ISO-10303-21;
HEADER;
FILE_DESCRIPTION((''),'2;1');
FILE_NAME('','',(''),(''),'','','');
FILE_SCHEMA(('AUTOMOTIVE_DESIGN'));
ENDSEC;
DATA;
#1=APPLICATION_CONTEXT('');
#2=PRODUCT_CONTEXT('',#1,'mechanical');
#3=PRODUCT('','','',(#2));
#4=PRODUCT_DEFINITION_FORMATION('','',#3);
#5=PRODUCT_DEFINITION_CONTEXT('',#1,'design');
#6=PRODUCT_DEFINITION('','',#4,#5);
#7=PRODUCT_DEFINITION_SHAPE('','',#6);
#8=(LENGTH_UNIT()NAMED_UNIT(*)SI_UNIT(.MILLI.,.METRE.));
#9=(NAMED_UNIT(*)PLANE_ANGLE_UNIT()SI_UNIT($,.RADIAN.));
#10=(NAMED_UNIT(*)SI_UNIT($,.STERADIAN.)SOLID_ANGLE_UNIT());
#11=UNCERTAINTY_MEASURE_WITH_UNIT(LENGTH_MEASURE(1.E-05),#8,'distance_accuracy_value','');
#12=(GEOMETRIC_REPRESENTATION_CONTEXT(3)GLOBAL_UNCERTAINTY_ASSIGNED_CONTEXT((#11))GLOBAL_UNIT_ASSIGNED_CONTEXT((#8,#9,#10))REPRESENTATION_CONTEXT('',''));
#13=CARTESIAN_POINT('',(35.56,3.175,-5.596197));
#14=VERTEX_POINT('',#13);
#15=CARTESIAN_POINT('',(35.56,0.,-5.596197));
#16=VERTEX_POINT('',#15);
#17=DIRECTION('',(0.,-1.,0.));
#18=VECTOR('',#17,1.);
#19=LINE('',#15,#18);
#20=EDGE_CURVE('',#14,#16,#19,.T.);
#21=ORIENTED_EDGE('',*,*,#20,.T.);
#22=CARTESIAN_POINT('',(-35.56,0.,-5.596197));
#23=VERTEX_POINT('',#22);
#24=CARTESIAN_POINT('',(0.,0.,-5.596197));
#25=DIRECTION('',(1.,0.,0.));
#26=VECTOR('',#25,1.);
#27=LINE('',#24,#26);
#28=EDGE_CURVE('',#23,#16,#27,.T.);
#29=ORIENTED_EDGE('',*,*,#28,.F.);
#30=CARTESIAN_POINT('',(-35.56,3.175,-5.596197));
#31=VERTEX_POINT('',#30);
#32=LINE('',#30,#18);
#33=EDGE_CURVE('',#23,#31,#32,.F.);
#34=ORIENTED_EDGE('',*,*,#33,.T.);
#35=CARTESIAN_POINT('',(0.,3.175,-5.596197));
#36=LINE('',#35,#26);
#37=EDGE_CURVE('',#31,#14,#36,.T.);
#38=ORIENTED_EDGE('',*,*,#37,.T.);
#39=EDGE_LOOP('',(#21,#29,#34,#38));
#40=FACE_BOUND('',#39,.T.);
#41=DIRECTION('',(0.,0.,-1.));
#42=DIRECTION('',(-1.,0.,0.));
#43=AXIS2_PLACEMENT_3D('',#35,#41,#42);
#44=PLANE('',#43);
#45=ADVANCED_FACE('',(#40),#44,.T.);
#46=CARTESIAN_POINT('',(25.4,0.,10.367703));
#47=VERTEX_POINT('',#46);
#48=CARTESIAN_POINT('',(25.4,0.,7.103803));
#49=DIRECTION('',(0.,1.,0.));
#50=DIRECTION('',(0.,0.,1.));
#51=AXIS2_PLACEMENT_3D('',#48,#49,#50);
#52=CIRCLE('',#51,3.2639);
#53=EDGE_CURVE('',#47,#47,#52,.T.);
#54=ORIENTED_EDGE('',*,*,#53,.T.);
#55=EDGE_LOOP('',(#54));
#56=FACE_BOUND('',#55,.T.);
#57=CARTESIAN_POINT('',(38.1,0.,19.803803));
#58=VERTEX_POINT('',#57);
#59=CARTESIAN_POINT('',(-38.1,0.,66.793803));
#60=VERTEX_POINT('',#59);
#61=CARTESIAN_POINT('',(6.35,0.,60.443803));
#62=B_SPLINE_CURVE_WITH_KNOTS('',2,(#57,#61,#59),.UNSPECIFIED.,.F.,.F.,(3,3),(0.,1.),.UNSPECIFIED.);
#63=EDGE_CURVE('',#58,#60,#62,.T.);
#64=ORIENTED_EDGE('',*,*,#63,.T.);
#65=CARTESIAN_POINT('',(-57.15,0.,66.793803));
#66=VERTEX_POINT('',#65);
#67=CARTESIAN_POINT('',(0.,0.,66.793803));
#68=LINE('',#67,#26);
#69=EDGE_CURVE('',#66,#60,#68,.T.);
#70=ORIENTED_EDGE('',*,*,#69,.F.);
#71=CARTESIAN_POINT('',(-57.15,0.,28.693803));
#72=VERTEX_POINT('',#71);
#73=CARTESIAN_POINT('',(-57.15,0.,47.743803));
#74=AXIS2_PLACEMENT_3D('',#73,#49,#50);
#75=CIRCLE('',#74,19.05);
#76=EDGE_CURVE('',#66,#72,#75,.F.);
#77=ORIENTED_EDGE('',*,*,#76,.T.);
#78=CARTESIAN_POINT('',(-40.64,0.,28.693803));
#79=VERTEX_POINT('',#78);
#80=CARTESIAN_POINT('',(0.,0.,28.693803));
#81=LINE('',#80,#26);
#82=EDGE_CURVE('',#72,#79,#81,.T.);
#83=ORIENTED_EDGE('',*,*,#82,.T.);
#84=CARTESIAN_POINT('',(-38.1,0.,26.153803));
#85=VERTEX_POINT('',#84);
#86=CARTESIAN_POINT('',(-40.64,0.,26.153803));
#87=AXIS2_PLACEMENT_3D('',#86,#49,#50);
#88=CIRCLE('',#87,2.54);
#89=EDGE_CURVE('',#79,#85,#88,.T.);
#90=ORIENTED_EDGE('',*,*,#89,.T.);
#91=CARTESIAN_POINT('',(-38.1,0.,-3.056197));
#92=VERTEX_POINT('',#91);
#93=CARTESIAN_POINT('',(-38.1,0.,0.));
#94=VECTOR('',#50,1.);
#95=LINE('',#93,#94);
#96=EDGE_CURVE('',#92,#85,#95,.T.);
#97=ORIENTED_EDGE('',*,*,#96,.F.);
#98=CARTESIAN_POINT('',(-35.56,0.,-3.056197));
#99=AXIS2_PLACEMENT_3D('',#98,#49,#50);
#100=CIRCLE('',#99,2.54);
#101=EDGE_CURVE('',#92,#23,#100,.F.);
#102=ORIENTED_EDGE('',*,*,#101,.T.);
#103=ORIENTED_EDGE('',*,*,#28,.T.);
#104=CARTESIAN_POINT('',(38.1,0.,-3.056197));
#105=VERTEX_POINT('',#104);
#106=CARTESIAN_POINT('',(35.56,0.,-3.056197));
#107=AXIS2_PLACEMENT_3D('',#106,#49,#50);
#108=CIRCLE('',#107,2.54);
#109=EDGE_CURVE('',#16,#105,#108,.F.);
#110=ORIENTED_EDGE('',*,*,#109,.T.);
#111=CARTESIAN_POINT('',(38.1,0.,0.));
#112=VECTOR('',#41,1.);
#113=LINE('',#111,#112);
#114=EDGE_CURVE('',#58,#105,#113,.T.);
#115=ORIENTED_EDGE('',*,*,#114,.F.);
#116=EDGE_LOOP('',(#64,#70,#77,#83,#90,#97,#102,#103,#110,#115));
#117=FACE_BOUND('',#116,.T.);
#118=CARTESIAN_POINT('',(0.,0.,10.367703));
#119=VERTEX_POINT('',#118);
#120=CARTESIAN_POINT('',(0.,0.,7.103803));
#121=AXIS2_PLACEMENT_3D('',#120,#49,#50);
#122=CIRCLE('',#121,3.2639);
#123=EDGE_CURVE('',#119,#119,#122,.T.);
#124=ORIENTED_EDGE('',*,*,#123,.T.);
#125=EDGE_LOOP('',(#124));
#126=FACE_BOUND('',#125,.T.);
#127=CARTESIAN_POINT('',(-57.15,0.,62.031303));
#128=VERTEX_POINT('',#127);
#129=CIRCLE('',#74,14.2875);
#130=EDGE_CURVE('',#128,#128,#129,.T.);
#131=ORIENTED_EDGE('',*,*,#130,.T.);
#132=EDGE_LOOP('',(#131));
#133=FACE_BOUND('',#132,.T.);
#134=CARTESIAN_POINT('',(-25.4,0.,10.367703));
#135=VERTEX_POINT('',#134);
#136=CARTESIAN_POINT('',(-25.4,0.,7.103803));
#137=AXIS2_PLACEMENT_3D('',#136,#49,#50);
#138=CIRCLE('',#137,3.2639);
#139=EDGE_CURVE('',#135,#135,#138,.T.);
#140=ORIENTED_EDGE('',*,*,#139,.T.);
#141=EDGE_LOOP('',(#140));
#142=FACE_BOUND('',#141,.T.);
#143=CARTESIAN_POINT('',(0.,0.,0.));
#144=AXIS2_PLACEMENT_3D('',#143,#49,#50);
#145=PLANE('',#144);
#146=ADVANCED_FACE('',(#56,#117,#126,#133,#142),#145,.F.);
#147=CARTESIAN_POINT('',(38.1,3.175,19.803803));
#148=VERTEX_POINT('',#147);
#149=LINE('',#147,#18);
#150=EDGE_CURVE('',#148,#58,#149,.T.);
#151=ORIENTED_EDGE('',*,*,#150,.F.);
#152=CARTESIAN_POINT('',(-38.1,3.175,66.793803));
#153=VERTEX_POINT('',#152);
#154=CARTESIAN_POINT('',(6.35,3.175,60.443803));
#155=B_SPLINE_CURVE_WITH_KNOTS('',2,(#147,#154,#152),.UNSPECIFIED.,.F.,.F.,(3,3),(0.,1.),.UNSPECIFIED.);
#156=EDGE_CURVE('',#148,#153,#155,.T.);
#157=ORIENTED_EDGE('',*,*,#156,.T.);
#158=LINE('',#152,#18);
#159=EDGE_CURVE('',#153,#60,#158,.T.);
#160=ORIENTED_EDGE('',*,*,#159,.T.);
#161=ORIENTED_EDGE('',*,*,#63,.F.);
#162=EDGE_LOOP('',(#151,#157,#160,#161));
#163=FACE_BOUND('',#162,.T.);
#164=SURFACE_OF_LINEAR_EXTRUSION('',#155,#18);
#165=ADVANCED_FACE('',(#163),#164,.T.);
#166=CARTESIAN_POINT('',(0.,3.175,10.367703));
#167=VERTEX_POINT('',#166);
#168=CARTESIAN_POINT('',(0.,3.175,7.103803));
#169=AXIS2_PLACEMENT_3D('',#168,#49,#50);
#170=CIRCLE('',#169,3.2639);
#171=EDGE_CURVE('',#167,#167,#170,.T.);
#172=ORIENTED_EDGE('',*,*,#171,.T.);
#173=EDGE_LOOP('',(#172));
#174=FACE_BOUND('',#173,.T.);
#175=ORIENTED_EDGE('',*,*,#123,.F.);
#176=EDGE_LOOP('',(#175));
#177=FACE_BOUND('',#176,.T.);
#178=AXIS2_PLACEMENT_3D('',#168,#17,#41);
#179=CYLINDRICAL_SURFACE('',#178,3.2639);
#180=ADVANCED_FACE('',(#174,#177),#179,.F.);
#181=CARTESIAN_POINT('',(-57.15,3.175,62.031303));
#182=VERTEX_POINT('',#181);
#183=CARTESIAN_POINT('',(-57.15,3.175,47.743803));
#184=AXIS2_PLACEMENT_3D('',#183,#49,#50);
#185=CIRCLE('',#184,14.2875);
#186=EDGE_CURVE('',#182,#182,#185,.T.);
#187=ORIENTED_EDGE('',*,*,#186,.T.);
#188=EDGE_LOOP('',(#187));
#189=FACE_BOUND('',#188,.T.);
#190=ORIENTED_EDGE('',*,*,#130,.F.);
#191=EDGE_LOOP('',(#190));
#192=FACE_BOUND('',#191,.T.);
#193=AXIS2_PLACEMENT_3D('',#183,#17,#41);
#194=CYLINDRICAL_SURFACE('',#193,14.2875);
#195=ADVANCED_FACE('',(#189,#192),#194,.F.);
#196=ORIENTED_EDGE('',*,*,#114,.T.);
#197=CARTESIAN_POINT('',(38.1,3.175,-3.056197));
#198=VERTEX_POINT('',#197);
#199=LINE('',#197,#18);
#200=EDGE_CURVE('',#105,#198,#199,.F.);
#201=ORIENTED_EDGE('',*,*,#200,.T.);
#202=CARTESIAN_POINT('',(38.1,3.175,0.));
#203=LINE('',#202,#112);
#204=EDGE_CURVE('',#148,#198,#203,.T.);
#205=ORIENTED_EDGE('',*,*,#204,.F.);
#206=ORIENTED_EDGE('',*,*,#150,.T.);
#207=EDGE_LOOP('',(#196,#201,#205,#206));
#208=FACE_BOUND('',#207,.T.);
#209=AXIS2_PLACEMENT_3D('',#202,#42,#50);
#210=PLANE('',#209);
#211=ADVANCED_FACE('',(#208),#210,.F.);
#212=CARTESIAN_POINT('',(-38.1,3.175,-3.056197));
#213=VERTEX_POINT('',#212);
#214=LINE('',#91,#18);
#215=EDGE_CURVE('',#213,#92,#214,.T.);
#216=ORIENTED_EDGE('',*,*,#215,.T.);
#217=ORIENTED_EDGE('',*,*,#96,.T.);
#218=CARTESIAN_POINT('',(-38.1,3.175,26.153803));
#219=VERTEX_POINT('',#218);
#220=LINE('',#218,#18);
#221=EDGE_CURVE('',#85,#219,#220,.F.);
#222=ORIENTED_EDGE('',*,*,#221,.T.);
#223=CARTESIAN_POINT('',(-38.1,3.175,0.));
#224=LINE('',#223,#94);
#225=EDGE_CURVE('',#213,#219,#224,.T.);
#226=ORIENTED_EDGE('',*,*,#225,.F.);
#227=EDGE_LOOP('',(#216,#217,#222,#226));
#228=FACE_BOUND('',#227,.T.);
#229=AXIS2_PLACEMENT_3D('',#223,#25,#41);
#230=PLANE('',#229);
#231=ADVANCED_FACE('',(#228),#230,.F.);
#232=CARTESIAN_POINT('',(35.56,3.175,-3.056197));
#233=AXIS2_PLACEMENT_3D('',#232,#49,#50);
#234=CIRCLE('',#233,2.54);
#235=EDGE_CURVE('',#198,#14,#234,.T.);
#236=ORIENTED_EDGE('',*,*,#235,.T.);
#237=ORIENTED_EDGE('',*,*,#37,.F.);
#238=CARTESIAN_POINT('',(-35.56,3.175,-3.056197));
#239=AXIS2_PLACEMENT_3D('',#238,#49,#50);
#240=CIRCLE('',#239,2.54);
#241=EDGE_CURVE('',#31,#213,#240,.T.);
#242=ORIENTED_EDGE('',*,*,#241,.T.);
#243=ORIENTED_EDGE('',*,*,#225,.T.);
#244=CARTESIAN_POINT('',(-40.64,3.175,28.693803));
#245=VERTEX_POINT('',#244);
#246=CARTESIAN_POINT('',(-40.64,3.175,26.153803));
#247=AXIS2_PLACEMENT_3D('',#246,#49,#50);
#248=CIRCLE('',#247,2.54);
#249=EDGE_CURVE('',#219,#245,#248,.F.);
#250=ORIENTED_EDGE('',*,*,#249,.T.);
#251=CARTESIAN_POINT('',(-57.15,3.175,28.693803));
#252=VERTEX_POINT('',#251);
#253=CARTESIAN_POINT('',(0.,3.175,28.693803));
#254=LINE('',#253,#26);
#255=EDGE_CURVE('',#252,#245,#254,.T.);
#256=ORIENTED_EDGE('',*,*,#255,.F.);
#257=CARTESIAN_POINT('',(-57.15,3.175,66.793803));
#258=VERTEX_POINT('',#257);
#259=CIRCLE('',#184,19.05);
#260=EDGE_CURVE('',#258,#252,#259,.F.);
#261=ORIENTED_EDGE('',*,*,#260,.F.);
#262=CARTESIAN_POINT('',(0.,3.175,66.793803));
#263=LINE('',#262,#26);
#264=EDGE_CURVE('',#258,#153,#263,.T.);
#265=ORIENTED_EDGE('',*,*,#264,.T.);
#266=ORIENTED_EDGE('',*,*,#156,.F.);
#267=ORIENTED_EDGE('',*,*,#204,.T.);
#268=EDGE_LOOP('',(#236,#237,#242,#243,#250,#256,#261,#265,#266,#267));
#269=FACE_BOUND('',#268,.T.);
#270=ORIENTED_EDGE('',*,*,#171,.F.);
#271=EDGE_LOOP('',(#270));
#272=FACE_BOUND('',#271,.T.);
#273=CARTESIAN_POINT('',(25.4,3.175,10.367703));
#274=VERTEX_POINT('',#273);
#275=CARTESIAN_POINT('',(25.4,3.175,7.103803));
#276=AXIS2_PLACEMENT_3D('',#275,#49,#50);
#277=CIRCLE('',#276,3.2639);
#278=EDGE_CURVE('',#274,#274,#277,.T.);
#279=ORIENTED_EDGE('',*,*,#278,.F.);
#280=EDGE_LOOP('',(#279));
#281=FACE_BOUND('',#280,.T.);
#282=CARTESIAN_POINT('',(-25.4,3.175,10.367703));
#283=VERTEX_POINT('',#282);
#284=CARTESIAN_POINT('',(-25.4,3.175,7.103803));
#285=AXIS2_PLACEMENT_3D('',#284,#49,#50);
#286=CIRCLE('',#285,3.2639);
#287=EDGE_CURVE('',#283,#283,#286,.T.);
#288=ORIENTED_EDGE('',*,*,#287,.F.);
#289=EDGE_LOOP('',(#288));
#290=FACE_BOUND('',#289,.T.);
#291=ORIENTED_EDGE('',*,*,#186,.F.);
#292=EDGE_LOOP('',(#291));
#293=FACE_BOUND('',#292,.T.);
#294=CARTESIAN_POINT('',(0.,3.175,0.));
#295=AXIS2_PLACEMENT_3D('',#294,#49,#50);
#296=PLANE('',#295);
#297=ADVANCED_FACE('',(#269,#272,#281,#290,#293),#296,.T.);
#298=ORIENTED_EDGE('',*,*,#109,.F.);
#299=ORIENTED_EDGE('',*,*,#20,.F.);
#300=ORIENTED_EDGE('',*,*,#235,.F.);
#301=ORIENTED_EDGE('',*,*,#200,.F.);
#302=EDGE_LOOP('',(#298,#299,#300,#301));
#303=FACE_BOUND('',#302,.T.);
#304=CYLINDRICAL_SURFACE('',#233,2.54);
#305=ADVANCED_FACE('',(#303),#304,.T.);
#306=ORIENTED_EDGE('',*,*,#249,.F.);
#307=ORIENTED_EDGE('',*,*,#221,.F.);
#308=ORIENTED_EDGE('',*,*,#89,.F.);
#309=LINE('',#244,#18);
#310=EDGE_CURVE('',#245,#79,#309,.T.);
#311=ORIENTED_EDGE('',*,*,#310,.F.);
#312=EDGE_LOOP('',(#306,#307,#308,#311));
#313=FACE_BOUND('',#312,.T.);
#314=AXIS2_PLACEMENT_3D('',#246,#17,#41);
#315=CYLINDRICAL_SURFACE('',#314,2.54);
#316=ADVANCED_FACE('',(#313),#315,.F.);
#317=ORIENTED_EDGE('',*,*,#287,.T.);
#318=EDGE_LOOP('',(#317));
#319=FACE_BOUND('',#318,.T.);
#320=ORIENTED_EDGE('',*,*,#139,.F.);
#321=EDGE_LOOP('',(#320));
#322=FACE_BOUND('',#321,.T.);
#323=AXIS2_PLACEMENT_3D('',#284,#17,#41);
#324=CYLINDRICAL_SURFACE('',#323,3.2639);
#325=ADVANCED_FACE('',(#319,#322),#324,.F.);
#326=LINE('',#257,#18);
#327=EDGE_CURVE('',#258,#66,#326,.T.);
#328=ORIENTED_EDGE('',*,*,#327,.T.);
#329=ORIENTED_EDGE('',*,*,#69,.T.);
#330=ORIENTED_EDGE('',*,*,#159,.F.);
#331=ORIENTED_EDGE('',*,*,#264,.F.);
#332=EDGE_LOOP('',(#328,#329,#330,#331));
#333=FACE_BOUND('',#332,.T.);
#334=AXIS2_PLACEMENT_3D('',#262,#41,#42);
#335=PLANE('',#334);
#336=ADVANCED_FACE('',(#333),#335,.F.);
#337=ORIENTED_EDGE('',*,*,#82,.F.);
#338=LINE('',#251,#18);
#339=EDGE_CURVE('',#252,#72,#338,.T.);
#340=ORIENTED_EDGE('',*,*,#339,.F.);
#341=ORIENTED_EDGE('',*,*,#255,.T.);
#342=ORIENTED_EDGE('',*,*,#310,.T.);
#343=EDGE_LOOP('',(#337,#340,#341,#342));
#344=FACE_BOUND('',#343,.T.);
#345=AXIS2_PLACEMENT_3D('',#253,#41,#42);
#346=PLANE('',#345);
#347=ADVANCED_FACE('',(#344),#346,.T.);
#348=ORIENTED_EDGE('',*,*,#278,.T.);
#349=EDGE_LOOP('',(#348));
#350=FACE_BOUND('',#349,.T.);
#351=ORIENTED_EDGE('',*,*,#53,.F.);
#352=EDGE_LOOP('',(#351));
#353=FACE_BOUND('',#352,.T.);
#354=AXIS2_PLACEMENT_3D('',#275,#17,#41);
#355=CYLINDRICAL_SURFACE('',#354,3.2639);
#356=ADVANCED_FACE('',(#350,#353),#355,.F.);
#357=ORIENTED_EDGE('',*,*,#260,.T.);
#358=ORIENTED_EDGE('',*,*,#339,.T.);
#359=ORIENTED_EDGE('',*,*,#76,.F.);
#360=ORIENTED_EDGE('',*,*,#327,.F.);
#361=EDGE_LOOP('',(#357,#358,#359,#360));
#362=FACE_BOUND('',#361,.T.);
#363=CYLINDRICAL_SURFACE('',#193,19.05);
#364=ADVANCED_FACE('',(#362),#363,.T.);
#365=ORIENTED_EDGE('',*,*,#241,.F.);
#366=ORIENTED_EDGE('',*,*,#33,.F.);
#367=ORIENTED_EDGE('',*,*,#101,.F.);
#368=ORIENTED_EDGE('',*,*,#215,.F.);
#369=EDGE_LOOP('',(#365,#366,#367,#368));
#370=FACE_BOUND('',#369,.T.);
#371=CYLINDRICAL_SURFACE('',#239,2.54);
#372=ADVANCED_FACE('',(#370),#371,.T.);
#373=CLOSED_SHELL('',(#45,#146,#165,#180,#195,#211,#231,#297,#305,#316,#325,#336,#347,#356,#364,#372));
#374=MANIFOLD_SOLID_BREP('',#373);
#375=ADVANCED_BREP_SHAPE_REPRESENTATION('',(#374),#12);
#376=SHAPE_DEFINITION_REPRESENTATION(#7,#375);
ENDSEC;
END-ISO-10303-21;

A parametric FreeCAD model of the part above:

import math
import FreeCAD as App
import Part
import Sketcher

V = App.Vector
Q = App.Units.Quantity


def edges_at(feature, points):
    """Names of the edges that pass closest to the given points."""
    edges = feature.Shape.Edges
    near = lambda p: min(range(len(edges)), key=lambda i: edges[i].distToShape(Part.Vertex(*p))[0])
    return sorted({f"Edge{near(p) + 1}" for p in points})

doc = App.newDocument("Part")
body = doc.addObject("PartDesign::Body", "Body")

# Sketch on XZ plane
sketch1 = body.newObject("Sketcher::SketchObject", "Sketch")
sketch1.AttachmentSupport = (doc.getObject("XZ_Plane"), [""])
sketch1.MapMode = "FlatFace"
sketch1.addGeometry(Part.LineSegment(V(-38.1, 28.693803, 0), V(-57.15, 28.693803, 0)), False)
sketch1.addGeometry(Part.ArcOfCircle(Part.Circle(V(-57.15, 47.743803, 0), V(0, 0, 1), 19.05), math.radians(90), math.radians(270)), False)
sketch1.addGeometry(Part.LineSegment(V(-57.15, 66.793803, 0), V(-38.1, 66.793803, 0)), False)
sketch1.addGeometry(Part.BSplineCurve([V(38.1, 19.803803, 0), V(6.35, 60.443803, 0), V(-38.1, 66.793803, 0)], [3, 3], [0, 1], False, 2, [1, 1, 1], False), False)
sketch1.addGeometry(Part.LineSegment(V(38.1, 19.803803, 0), V(38.1, -5.596197, 0)), False)
sketch1.addGeometry(Part.LineSegment(V(38.1, -5.596197, 0), V(-38.1, -5.596197, 0)), False)
sketch1.addGeometry(Part.LineSegment(V(-38.1, -5.596197, 0), V(-38.1, 28.693803, 0)), False)
sketch1.addGeometry(Part.Circle(V(-57.15, 47.743803, 0), V(0, 0, 1), 14.2875), False)
sketch1.addGeometry(Part.Circle(V(-25.4, 7.103803, 0), V(0, 0, 1), 3.2639), False)
sketch1.addGeometry(Part.Circle(V(0, 7.103803, 0), V(0, 0, 1), 3.2639), False)
sketch1.addGeometry(Part.Circle(V(25.4, 7.103803, 0), V(0, 0, 1), 3.2639), False)
sketch1.addConstraint(Sketcher.Constraint("Block", 3))
sketch1.addConstraint(Sketcher.Constraint("Tangent", 0, 2, 1, 2))
sketch1.addConstraint(Sketcher.Constraint("Tangent", 1, 1, 2, 1))
sketch1.addConstraint(Sketcher.Constraint("Coincident", 2, 2, 3, 2))
sketch1.addConstraint(Sketcher.Constraint("Coincident", 3, 1, 4, 1))
sketch1.addConstraint(Sketcher.Constraint("Coincident", 4, 2, 5, 1))
sketch1.addConstraint(Sketcher.Constraint("Coincident", 5, 2, 6, 1))
sketch1.addConstraint(Sketcher.Constraint("Coincident", 6, 2, 0, 1))
sketch1.addConstraint(Sketcher.Constraint("Horizontal", 0))
sketch1.addConstraint(Sketcher.Constraint("Horizontal", 2))
sketch1.addConstraint(Sketcher.Constraint("Vertical", 4))
sketch1.addConstraint(Sketcher.Constraint("Horizontal", 5))
sketch1.addConstraint(Sketcher.Constraint("Vertical", 6))
sketch1.addConstraint(Sketcher.Constraint("Coincident", 7, 3, 1, 3))
sketch1.addConstraint(Sketcher.Constraint("Equal", 8, 9))
sketch1.addConstraint(Sketcher.Constraint("Equal", 9, 10))
sketch1.addConstraint(Sketcher.Constraint("Symmetric", 8, 3, 10, 3, -2))
sketch1.addConstraint(Sketcher.Constraint("PointOnObject", 9, 3, -2))
sketch1.addConstraint(Sketcher.Constraint("Horizontal", 8, 3, 9, 3))
sketch1.addConstraint(Sketcher.Constraint("Vertical", 2, 2, 5, 2))
sketch1.addConstraint(Sketcher.Constraint("DistanceY", 4, 2, 4, 1, Q("1 in")))
sketch1.addConstraint(Sketcher.Constraint("Radius", 1, Q("0.75 in")))
sketch1.addConstraint(Sketcher.Constraint("Diameter", 7, Q("1.125 in")))
sketch1.addConstraint(Sketcher.Constraint("Diameter", 8, Q("0.257 in")))
sketch1.addConstraint(Sketcher.Constraint("DistanceX", 8, 3, -1, 1, Q("1 in")))
sketch1.addConstraint(Sketcher.Constraint("DistanceX", 0, 2, 0, 1, Q("0.75 in")))
sketch1.addConstraint(Sketcher.Constraint("DistanceY", 8, 3, 1, 3, Q("1.6 in")))
pad1 = body.newObject("PartDesign::Pad", "Pad")
pad1.Profile = sketch1
pad1.Length = Q("0.125 in")
pad1.Reversed = True
doc.recompute()

fillet = body.newObject("PartDesign::Fillet", "Fillet")
fillet.Base = (pad1, edges_at(pad1, [(-38.1, 1.587, 28.694), (-38.1, 1.587, -5.596), (38.1, 1.587, -5.596)]))
fillet.Radius = Q("0.1 in")

doc.recompute()
